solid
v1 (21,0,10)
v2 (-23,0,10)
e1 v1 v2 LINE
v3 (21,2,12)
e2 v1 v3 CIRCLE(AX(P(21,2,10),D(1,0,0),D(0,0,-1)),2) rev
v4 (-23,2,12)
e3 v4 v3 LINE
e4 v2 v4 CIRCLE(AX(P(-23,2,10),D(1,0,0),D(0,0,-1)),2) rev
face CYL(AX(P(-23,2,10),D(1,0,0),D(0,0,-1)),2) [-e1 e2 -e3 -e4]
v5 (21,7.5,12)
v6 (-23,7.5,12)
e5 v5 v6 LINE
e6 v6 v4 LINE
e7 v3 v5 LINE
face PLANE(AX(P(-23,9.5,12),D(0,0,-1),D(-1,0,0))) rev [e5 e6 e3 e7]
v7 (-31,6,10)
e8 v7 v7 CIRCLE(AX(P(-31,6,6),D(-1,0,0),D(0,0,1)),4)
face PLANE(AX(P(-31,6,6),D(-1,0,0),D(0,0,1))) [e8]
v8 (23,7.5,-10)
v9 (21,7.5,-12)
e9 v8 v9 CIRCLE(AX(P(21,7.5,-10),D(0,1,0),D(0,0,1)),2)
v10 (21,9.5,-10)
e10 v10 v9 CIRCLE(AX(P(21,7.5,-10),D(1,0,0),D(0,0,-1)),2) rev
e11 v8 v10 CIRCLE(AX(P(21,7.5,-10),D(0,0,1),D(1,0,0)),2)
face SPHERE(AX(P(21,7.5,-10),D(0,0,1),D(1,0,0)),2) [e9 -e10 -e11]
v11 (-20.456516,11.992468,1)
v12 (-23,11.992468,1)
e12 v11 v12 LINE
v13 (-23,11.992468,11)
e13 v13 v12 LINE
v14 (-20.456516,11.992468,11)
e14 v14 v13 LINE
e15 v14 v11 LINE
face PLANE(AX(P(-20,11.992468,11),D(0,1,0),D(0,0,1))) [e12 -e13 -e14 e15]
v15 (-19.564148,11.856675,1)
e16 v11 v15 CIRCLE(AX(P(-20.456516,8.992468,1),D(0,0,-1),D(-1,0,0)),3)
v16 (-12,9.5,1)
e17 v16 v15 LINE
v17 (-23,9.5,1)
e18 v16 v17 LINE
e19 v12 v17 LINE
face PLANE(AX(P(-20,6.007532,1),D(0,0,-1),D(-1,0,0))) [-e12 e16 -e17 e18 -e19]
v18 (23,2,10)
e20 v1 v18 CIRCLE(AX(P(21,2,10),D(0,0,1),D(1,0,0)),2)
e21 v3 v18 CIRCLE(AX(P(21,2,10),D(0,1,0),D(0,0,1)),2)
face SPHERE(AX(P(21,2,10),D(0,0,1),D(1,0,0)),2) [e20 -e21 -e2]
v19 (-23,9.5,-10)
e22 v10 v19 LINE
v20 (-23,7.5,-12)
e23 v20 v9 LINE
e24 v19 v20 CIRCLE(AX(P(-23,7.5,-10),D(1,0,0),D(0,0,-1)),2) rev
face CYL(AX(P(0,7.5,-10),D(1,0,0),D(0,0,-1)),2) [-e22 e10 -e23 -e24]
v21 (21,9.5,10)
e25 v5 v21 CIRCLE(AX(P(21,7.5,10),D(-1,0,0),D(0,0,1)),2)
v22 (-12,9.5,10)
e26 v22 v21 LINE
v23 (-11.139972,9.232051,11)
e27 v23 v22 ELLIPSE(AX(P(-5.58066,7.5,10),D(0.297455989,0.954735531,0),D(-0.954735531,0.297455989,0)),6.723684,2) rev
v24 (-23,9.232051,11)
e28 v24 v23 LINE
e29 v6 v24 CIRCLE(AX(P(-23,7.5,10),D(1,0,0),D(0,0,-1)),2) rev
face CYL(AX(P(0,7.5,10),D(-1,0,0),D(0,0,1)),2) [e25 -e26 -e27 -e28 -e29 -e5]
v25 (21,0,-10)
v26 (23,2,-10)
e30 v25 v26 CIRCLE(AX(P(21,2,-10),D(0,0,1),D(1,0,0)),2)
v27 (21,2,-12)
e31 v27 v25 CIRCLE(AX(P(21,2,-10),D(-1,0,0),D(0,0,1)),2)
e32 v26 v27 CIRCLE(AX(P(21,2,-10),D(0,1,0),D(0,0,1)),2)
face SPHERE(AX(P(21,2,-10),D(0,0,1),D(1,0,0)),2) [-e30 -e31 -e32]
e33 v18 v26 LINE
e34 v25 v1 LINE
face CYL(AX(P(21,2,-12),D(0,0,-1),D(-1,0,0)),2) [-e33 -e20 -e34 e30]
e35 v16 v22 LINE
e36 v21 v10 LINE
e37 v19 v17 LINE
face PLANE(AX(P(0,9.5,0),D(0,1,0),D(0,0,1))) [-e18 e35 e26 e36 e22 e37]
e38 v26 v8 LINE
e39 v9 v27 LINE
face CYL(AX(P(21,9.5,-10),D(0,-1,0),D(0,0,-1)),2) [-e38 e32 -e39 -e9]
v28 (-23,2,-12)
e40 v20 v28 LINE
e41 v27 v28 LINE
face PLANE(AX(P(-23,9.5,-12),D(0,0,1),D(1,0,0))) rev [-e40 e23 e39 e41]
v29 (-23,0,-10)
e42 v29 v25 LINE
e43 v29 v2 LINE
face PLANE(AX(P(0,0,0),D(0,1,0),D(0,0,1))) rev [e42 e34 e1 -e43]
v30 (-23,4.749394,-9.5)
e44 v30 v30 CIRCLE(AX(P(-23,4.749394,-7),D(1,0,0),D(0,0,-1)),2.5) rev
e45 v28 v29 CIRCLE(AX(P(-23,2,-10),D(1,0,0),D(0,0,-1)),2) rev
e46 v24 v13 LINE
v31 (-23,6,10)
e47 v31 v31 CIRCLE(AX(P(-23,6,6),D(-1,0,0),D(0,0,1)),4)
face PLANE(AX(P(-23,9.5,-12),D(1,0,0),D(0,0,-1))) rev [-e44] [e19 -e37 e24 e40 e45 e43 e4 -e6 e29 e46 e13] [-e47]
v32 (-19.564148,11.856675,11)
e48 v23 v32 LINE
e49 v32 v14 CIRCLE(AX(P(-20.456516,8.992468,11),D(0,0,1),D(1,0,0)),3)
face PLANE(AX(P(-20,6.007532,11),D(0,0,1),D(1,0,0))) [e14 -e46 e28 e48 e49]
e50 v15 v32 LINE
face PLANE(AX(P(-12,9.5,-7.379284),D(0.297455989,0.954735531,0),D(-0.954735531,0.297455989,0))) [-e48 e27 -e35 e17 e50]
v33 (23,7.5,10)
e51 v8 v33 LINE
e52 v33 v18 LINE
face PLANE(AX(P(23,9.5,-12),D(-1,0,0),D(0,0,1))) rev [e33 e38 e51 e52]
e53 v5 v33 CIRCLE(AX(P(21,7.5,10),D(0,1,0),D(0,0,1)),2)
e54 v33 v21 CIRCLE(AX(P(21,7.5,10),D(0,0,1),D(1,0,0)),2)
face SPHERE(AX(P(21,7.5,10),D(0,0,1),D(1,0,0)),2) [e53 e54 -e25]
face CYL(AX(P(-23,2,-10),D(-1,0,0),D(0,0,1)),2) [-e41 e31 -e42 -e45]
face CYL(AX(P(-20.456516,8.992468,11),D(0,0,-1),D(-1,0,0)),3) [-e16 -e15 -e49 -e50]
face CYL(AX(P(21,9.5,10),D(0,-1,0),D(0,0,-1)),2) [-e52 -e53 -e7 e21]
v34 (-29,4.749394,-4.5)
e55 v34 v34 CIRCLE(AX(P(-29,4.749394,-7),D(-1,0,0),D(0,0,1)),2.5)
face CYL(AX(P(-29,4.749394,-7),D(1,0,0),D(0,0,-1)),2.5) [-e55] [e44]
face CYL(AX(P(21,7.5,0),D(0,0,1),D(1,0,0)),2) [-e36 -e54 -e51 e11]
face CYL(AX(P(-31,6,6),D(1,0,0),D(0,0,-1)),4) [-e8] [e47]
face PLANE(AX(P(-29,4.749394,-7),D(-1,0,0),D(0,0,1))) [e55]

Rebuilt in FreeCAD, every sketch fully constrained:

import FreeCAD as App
import Part
import Sketcher


def edges_at(feature, points):
    """Names of the edges that pass closest to the given points."""
    edges = feature.Shape.Edges
    near = lambda p: min(range(len(edges)), key=lambda i: edges[i].distToShape(Part.Vertex(*p))[0])
    return sorted({f"Edge{near(p) + 1}" for p in points})

doc = App.newDocument("Part")
body = doc.addObject("PartDesign::Body", "Body")

sketch1 = body.newObject("Sketcher::SketchObject", "Sketch")
sketch1.AttachmentSupport = (doc.getObject("XZ_Plane"), [""])
sketch1.MapMode = "FlatFace"
sketch1.addGeometry(Part.LineSegment(App.Vector(-23, -12, 0), App.Vector(-23, 12, 0)), False)
sketch1.addGeometry(Part.LineSegment(App.Vector(-23, 12, 0), App.Vector(23, 12, 0)), False)
sketch1.addGeometry(Part.LineSegment(App.Vector(23, 12, 0), App.Vector(23, -12, 0)), False)
sketch1.addGeometry(Part.LineSegment(App.Vector(23, -12, 0), App.Vector(-23, -12, 0)), False)
sketch1.addConstraint(Sketcher.Constraint("Coincident", 0, 2, 1, 1))
sketch1.addConstraint(Sketcher.Constraint("Coincident", 1, 2, 2, 1))
sketch1.addConstraint(Sketcher.Constraint("Coincident", 2, 2, 3, 1))
sketch1.addConstraint(Sketcher.Constraint("Coincident", 3, 2, 0, 1))
sketch1.addConstraint(Sketcher.Constraint("Vertical", 0))
sketch1.addConstraint(Sketcher.Constraint("Horizontal", 1))
sketch1.addConstraint(Sketcher.Constraint("Vertical", 2))
sketch1.addConstraint(Sketcher.Constraint("Horizontal", 3))
sketch1.addConstraint(Sketcher.Constraint("Symmetric", 0, 2, 2, 2, -1, 1))
sketch1.addConstraint(Sketcher.Constraint("DistanceX", 1, 1, 1, 2, 46.0))
sketch1.addConstraint(Sketcher.Constraint("DistanceY", 0, 1, 0, 2, 24.0))
pad1 = body.newObject("PartDesign::Pad", "Pad")
pad1.Profile = sketch1
pad1.Length = 9.5
pad1.Reversed = True

sketch2 = body.newObject("Sketcher::SketchObject", "Sketch001")
sketch2.AttachmentSupport = (doc.getObject("YZ_Plane"), [""])
sketch2.MapMode = "FlatFace"
sketch2.AttachmentOffset = App.Placement(App.Vector(0, 0, -23), App.Rotation())
sketch2.addGeometry(Part.Circle(App.Vector(6, 6, 0), App.Vector(0, 0, 1), 4), False)
sketch2.addConstraint(Sketcher.Constraint("Diameter", 0, 8.0))
sketch2.addConstraint(Sketcher.Constraint("DistanceX", -1, 1, 0, 3, 6.0))
sketch2.addConstraint(Sketcher.Constraint("DistanceY", -1, 1, 0, 3, 6.0))
pad2 = body.newObject("PartDesign::Pad", "Pad001")
pad2.Profile = sketch2
pad2.Length = 8
pad2.Reversed = True

sketch3 = body.newObject("Sketcher::SketchObject", "Sketch002")
sketch3.AttachmentSupport = (doc.getObject("YZ_Plane"), [""])
sketch3.MapMode = "FlatFace"
sketch3.AttachmentOffset = App.Placement(App.Vector(0, 0, -23), App.Rotation())
sketch3.addGeometry(Part.LineSegment(App.Vector(12, 1, 0), App.Vector(6, 1, 0)), False)
sketch3.addGeometry(Part.LineSegment(App.Vector(6, 1, 0), App.Vector(6, 11, 0)), False)
sketch3.addGeometry(Part.LineSegment(App.Vector(6, 11, 0), App.Vector(12, 11, 0)), False)
sketch3.addGeometry(Part.LineSegment(App.Vector(12, 11, 0), App.Vector(12, 1, 0)), False)
sketch3.addConstraint(Sketcher.Constraint("Coincident", 0, 2, 1, 1))
sketch3.addConstraint(Sketcher.Constraint("Coincident", 1, 2, 2, 1))
sketch3.addConstraint(Sketcher.Constraint("Coincident", 2, 2, 3, 1))
sketch3.addConstraint(Sketcher.Constraint("Coincident", 3, 2, 0, 1))
sketch3.addConstraint(Sketcher.Constraint("Horizontal", 0))
sketch3.addConstraint(Sketcher.Constraint("Vertical", 1))
sketch3.addConstraint(Sketcher.Constraint("Horizontal", 2))
sketch3.addConstraint(Sketcher.Constraint("Vertical", 3))
sketch3.addConstraint(Sketcher.Constraint("DistanceY", 1, 1, 1, 2, 10.0))
sketch3.addConstraint(Sketcher.Constraint("DistanceY", -1, 1, 0, 2, 1.0))
sketch3.addConstraint(Sketcher.Constraint("DistanceX", 0, 2, 0, 1, 5.984936))
sketch3.addConstraint(Sketcher.Constraint("DistanceX", -1, 1, 0, 2, 6.007532))
pad3 = body.newObject("PartDesign::Pad", "Pad002")
pad3.Profile = sketch3
pad3.Length = 3

sketch4 = body.newObject("Sketcher::SketchObject", "Sketch003")
sketch4.AttachmentSupport = (doc.getObject("XY_Plane"), [""])
sketch4.MapMode = "FlatFace"
sketch4.AttachmentOffset = App.Placement(App.Vector(0, 0, 11), App.Rotation())
sketch4.addGeometry(Part.LineSegment(App.Vector(-20, 12, 0), App.Vector(-20, 9.5, 0)), False)
sketch4.addGeometry(Part.LineSegment(App.Vector(-20, 9.5, 0), App.Vector(-12, 9.5, 0)), False)
sketch4.addGeometry(Part.LineSegment(App.Vector(-12, 9.5, 0), App.Vector(-20, 12, 0)), False)
sketch4.addConstraint(Sketcher.Constraint("Coincident", 0, 2, 1, 1))
sketch4.addConstraint(Sketcher.Constraint("Coincident", 1, 2, 2, 1))
sketch4.addConstraint(Sketcher.Constraint("Coincident", 2, 2, 0, 1))
sketch4.addConstraint(Sketcher.Constraint("Vertical", 0))
sketch4.addConstraint(Sketcher.Constraint("Horizontal", 1))
sketch4.addConstraint(Sketcher.Constraint("DistanceX", 1, 1, 1, 2, 8.0))
sketch4.addConstraint(Sketcher.Constraint("DistanceX", 0, 2, -1, 1, 20.0))
sketch4.addConstraint(Sketcher.Constraint("DistanceY", -1, 1, 0, 2, 9.5))
sketch4.addConstraint(Sketcher.Constraint("DistanceY", 0, 2, 0, 1, 2.492468))
pad4 = body.newObject("PartDesign::Pad", "Pad003")
pad4.Profile = sketch4
pad4.Length = 10
pad4.Reversed = True

sketch5 = body.newObject("Sketcher::SketchObject", "Sketch004")
sketch5.AttachmentSupport = (doc.getObject("YZ_Plane"), [""])
sketch5.MapMode = "FlatFace"
sketch5.AttachmentOffset = App.Placement(App.Vector(0, 0, -23), App.Rotation())
sketch5.addGeometry(Part.Circle(App.Vector(4.7, -7, 0), App.Vector(0, 0, 1), 2.5), False)
sketch5.addConstraint(Sketcher.Constraint("Diameter", 0, 5.0))
sketch5.addConstraint(Sketcher.Constraint("DistanceY", 0, 3, -1, 1, 7.0))
sketch5.addConstraint(Sketcher.Constraint("DistanceX", -1, 1, 0, 3, 4.749394))
pad5 = body.newObject("PartDesign::Pad", "Pad004")
pad5.Profile = sketch5
pad5.Length = 6
pad5.Reversed = True
doc.recompute()

fillet = body.newObject("PartDesign::Fillet", "Fillet")
fillet.Base = (pad5, edges_at(pad5, [(-20, 11.992, 6)]))
fillet.Radius = 3
doc.recompute()

fillet2 = body.newObject("PartDesign::Fillet", "Fillet001")
fillet2.Base = (fillet, edges_at(fillet, [
    (0, 0, 12),
    (0, 0, -12),
    (0, 9.5, -12),
    (0, 9.5, 12),
]))
fillet2.Radius = 2
doc.recompute()

fillet3 = body.newObject("PartDesign::Fillet", "Fillet002")
fillet3.Base = (fillet2, edges_at(fillet2, [
    (23, 4.75, 12),
    (23, 0, 0),
    (23, 4.75, -12),
    (23, 9.5, 0),
    (23, 8.914, 11.414),
    (23, 8.914, -11.414),
    (23, 0.586, -11.414),
    (23, 0.586, 11.414),
]))
fillet3.Radius = 2

doc.recompute()
